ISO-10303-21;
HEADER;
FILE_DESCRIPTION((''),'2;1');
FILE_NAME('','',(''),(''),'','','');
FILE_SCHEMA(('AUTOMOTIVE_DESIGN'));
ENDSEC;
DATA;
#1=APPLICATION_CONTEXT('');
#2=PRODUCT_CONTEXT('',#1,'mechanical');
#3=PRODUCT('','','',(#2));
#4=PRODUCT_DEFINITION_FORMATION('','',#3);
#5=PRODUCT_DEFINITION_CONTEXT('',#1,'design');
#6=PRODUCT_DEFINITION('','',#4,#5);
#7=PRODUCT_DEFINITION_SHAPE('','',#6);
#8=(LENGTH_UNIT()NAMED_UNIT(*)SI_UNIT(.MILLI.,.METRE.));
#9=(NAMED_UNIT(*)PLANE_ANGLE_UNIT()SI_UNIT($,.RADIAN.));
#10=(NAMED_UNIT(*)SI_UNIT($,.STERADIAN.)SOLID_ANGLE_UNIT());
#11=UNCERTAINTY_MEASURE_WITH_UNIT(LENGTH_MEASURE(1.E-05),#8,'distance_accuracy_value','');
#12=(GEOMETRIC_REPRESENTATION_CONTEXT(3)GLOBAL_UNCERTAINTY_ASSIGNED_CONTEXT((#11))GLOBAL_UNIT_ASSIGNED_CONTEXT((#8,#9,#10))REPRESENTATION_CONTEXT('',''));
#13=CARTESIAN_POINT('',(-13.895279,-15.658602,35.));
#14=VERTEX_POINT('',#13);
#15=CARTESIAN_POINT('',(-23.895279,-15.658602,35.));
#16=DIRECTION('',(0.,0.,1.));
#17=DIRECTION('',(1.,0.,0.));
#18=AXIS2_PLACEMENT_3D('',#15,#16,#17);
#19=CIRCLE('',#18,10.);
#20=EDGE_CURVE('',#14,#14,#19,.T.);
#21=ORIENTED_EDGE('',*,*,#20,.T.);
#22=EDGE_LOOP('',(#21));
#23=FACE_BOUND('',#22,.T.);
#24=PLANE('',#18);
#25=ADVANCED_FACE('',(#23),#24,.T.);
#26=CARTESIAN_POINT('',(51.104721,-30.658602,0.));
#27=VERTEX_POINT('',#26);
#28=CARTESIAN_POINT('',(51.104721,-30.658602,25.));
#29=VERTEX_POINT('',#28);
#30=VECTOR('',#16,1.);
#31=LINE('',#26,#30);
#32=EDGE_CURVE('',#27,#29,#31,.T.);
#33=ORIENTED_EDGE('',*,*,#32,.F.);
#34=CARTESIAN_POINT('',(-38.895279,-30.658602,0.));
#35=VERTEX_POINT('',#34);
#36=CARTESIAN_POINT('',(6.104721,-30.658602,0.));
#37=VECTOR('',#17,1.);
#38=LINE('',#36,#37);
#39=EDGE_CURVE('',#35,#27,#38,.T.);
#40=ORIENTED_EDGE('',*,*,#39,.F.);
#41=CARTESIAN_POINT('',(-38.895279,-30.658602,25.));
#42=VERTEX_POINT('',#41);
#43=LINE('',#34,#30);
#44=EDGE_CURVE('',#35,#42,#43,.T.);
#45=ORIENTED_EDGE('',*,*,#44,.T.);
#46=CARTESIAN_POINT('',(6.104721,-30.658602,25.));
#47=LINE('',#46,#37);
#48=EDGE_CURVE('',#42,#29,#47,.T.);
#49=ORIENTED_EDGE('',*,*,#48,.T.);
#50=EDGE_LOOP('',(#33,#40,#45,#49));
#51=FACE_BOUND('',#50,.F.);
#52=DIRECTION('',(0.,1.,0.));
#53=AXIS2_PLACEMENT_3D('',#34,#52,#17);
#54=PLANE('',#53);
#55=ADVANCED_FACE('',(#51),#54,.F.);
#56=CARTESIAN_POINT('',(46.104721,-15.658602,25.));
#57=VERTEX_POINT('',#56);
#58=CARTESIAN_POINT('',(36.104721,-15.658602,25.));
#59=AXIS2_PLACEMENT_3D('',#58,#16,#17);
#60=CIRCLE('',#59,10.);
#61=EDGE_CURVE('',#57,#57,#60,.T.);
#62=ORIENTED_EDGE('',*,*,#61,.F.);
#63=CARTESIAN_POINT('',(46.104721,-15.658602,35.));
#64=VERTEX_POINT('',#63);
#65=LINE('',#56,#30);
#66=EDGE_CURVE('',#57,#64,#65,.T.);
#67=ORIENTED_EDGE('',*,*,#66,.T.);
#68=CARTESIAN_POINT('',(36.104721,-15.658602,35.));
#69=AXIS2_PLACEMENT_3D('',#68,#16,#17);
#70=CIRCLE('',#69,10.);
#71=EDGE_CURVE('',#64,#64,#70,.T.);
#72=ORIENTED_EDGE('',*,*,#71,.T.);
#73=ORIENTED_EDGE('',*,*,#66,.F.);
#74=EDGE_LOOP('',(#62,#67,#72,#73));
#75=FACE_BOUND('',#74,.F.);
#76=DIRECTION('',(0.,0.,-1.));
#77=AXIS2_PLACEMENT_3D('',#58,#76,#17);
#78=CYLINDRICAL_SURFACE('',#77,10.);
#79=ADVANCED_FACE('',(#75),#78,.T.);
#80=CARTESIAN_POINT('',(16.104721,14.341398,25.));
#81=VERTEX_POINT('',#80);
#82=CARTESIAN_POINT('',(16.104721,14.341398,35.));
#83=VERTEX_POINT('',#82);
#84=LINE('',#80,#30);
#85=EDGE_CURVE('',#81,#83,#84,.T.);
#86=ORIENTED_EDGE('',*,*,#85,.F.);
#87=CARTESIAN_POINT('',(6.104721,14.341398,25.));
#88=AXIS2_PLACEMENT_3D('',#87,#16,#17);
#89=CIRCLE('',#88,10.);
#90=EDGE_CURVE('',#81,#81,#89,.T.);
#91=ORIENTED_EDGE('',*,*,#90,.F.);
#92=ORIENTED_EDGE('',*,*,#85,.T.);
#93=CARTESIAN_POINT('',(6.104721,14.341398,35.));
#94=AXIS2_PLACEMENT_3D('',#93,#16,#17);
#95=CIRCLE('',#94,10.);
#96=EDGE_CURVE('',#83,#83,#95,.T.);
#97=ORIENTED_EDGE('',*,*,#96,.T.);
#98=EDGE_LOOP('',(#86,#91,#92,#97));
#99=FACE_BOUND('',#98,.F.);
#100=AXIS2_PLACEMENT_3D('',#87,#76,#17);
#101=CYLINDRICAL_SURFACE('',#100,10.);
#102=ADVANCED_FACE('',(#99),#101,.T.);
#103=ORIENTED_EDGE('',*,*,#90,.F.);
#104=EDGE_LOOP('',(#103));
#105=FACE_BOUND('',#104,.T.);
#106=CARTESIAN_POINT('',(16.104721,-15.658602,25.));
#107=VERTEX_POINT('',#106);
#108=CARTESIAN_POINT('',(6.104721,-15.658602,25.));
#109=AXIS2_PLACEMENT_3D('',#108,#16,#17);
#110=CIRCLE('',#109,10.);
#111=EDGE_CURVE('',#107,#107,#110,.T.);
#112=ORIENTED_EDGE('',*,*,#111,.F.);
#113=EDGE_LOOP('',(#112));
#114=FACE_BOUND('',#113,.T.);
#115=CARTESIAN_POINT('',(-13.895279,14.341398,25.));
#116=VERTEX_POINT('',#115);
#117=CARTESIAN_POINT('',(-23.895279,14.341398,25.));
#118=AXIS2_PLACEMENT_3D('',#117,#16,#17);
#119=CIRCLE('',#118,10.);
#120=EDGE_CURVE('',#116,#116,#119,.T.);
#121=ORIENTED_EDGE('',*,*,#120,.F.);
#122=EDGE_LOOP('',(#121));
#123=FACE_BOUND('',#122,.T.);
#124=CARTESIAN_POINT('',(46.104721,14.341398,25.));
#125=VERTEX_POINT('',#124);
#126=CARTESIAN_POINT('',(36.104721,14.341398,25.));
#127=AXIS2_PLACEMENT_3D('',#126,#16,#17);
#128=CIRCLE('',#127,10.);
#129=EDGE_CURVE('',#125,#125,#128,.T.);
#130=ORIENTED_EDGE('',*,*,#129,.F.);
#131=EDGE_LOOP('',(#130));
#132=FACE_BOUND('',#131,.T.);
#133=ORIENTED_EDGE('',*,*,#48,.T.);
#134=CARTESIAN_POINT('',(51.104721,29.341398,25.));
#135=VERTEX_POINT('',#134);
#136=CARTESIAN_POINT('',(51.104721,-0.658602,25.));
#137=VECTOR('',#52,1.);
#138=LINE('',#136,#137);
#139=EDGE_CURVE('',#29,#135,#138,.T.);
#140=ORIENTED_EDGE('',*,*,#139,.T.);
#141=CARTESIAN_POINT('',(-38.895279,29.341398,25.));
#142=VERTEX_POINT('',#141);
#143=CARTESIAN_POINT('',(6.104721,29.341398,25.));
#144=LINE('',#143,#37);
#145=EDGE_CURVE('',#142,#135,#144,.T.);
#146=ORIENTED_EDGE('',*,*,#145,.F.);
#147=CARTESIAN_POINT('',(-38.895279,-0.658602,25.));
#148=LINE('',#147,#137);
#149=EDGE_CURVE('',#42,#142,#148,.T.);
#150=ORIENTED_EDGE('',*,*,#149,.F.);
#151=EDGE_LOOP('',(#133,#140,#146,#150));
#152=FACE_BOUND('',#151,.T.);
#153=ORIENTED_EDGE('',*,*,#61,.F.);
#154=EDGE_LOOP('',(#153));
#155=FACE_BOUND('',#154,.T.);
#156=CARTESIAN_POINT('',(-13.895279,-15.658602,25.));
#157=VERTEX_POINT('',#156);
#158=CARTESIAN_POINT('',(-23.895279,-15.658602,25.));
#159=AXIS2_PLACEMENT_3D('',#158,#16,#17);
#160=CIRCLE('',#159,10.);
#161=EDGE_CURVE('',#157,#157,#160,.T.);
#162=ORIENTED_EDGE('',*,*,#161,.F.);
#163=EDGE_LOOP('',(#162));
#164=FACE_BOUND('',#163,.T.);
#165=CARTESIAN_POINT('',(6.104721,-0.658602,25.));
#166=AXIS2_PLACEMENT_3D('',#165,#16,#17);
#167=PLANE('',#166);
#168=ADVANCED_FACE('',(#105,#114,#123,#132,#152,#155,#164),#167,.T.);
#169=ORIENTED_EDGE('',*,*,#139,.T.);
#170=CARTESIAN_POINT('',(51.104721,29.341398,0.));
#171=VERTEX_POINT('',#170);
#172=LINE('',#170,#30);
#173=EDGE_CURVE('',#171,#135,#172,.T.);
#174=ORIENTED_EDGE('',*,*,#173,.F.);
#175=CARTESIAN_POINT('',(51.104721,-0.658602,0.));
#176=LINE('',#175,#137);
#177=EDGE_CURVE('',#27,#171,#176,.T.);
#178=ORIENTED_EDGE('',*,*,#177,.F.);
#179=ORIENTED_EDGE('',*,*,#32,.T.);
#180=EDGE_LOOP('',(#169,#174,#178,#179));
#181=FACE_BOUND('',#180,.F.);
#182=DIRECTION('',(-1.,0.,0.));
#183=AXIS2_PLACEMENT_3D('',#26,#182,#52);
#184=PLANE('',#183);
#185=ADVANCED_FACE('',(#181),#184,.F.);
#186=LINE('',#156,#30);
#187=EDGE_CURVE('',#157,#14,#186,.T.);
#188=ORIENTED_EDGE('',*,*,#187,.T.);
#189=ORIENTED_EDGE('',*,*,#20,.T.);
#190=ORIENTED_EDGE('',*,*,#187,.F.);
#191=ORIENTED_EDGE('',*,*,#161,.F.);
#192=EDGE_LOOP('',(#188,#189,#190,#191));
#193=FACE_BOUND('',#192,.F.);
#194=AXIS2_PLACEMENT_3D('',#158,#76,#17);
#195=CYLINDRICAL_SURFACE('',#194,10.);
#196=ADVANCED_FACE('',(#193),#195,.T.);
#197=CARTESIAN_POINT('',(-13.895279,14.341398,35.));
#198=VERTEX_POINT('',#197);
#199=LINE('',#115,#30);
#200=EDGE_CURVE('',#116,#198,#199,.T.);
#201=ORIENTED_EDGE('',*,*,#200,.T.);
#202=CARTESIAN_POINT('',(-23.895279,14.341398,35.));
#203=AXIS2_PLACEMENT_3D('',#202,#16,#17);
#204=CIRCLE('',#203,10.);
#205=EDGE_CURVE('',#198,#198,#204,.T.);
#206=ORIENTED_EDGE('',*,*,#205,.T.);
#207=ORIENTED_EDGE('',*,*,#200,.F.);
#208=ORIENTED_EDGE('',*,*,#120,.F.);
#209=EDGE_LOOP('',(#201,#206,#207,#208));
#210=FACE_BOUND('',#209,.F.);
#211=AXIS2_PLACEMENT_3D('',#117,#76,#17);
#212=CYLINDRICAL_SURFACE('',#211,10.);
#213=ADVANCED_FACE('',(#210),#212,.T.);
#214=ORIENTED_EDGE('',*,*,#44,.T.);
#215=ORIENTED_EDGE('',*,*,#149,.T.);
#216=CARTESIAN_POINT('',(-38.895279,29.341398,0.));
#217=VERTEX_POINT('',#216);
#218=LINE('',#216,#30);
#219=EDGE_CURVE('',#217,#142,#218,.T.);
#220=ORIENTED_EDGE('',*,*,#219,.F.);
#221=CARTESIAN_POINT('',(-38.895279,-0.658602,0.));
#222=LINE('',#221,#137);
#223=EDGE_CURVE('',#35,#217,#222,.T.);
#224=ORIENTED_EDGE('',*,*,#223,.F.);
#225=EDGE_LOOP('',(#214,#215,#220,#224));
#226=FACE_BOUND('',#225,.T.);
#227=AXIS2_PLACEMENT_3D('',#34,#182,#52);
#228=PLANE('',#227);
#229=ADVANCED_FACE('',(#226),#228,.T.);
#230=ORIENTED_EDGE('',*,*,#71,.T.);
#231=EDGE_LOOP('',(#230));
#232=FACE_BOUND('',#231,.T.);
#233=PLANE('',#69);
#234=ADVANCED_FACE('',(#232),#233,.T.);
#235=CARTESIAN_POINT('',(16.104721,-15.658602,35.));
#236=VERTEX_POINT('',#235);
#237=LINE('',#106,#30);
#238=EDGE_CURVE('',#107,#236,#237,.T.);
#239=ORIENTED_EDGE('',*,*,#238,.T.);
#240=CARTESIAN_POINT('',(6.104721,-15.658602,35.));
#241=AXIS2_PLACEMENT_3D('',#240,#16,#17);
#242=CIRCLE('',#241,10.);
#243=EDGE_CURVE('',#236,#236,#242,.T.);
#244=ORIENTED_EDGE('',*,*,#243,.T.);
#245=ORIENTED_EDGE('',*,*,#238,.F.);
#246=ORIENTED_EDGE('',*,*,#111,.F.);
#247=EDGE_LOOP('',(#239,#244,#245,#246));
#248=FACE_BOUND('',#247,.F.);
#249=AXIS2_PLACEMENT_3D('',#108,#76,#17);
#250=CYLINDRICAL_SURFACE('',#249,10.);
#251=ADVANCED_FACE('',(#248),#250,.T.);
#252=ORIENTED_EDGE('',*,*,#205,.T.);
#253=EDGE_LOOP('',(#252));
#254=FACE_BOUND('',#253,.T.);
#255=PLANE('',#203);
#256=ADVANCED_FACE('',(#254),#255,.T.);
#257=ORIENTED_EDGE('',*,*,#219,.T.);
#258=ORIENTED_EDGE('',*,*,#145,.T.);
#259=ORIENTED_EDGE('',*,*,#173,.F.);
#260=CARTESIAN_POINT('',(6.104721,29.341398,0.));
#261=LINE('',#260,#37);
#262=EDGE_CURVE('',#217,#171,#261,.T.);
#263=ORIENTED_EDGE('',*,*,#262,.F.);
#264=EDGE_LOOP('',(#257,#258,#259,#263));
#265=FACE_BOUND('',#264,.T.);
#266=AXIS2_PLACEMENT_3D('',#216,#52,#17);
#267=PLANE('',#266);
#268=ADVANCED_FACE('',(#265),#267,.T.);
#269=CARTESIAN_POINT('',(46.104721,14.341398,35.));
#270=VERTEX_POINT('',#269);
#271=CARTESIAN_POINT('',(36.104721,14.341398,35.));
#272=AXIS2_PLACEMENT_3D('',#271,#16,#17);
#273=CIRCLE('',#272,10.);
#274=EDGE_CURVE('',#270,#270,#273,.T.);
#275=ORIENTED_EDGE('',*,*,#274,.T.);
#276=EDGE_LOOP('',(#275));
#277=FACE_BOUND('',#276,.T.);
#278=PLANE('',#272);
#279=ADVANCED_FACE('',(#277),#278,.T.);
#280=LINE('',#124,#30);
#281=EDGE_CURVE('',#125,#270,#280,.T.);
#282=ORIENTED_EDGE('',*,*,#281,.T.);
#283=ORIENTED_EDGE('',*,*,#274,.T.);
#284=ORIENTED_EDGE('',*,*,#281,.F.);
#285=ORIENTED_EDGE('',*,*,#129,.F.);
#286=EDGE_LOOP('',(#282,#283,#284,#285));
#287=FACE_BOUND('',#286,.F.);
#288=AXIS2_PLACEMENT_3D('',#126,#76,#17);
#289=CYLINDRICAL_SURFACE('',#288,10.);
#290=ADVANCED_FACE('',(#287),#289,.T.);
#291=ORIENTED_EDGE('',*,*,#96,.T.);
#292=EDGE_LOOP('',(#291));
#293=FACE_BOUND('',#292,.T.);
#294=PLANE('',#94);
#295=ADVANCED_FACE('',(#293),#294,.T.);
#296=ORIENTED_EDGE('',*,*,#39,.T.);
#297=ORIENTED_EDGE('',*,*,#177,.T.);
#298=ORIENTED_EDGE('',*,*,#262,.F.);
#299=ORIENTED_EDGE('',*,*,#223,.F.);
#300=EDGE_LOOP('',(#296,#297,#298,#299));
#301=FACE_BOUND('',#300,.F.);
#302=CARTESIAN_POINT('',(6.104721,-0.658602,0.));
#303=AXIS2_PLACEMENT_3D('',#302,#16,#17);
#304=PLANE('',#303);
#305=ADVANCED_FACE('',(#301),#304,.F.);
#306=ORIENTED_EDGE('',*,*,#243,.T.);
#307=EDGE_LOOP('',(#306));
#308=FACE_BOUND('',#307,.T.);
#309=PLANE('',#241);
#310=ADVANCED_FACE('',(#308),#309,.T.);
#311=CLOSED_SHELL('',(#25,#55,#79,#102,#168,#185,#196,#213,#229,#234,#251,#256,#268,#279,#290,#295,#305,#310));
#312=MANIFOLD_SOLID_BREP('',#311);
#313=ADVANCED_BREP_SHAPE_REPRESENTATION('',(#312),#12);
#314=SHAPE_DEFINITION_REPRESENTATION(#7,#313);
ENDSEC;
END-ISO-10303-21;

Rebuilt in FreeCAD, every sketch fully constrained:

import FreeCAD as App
import Part
import Sketcher
from FreeCAD import Vector
Q = App.Units.Quantity


def add_polygon(sketch, points):
    """Adds a closed chain of lines whose ends are joined by coincident constraints."""
    first, n = sketch.GeometryCount, len(points)
    for a, b in zip(points, points[1:] + points[:1]):
        sketch.addGeometry(Part.LineSegment(App.Vector(*a, 0), App.Vector(*b, 0)), False)
    for i in range(n):
        sketch.addConstraint(Sketcher.Constraint("Coincident", first + i, 2, first + (i + 1) % n, 1))

doc = App.newDocument("Part")
body = doc.addObject("PartDesign::Body", "Body")

sketch1 = body.newObject("Sketcher::SketchObject", "Sketch")
sketch1.AttachmentSupport = (doc.getObject("XY_Plane"), [""])
sketch1.MapMode = "FlatFace"
add_polygon(sketch1, [(-39, 29), (-39, -31), (51, -31), (51, 29)])
sketch1.addConstraint([
    Sketcher.Constraint("Vertical", 0),
    Sketcher.Constraint("Horizontal", 1),
    Sketcher.Constraint("Vertical", 2),
    Sketcher.Constraint("Horizontal", 3),
    Sketcher.Constraint("DistanceX", 1, 1, 1, 2, Q("90 mm")),
    Sketcher.Constraint("DistanceY", 0, 2, 0, 1, Q("60 mm")),
    Sketcher.Constraint("DistanceY", 0, 2, -1, 1, Q("30.658602 mm")),
    Sketcher.Constraint("DistanceX", 0, 2, -1, 1, Q("38.895279 mm")),
])
pad1 = body.newObject("PartDesign::Pad", "Pad")
pad1.Profile = sketch1
pad1.Length = 25

sketch2 = body.newObject("Sketcher::SketchObject", "Sketch001")
sketch2.AttachmentSupport = (doc.getObject("XY_Plane"), [""])
sketch2.MapMode = "FlatFace"
sketch2.AttachmentOffset = App.Placement(Vector(0, 0, 25), App.Rotation())
sketch2.addGeometry([
    Part.Circle(Vector(-24, 14, 0), Vector(0, 0, 1), 10),
    Part.Circle(Vector(6, 14, 0), Vector(0, 0, 1), 10),
    Part.Circle(Vector(36, 14, 0), Vector(0, 0, 1), 10),
    Part.Circle(Vector(36, -16, 0), Vector(0, 0, 1), 10),
    Part.Circle(Vector(6, -16, 0), Vector(0, 0, 1), 10),
    Part.Circle(Vector(-24, -16, 0), Vector(0, 0, 1), 10),
], False)
sketch2.addConstraint([
    Sketcher.Constraint("Equal", 0, 1),
    Sketcher.Constraint("Equal", 1, 2),
    Sketcher.Constraint("Equal", 2, 3),
    Sketcher.Constraint("Equal", 3, 4),
    Sketcher.Constraint("Equal", 4, 5),
    Sketcher.Constraint("Horizontal", 0, 3, 1, 3),
    Sketcher.Constraint("Horizontal", 1, 3, 2, 3),
    Sketcher.Constraint("Horizontal", 3, 3, 4, 3),
    Sketcher.Constraint("Horizontal", 4, 3, 5, 3),
    Sketcher.Constraint("Vertical", 2, 3, 3, 3),
    Sketcher.Constraint("Vertical", 1, 3, 4, 3),
    Sketcher.Constraint("Vertical", 0, 3, 5, 3),
    Sketcher.Constraint("Diameter", 0, Q("20 mm")),
    Sketcher.Constraint("DistanceX", 0, 3, 1, 3, Q("30 mm")),
    Sketcher.Constraint("DistanceX", 1, 3, 2, 3, Q("30 mm")),
    Sketcher.Constraint("DistanceY", 3, 3, 2, 3, Q("30 mm")),
    Sketcher.Constraint("DistanceX", 0, 3, -1, 1, Q("23.895279 mm")),
    Sketcher.Constraint("DistanceY", -1, 1, 0, 3, Q("14.341398 mm")),
])
pad2 = body.newObject("PartDesign::Pad", "Pad001")
pad2.Profile = sketch2
pad2.Length = 10

doc.recompute()
